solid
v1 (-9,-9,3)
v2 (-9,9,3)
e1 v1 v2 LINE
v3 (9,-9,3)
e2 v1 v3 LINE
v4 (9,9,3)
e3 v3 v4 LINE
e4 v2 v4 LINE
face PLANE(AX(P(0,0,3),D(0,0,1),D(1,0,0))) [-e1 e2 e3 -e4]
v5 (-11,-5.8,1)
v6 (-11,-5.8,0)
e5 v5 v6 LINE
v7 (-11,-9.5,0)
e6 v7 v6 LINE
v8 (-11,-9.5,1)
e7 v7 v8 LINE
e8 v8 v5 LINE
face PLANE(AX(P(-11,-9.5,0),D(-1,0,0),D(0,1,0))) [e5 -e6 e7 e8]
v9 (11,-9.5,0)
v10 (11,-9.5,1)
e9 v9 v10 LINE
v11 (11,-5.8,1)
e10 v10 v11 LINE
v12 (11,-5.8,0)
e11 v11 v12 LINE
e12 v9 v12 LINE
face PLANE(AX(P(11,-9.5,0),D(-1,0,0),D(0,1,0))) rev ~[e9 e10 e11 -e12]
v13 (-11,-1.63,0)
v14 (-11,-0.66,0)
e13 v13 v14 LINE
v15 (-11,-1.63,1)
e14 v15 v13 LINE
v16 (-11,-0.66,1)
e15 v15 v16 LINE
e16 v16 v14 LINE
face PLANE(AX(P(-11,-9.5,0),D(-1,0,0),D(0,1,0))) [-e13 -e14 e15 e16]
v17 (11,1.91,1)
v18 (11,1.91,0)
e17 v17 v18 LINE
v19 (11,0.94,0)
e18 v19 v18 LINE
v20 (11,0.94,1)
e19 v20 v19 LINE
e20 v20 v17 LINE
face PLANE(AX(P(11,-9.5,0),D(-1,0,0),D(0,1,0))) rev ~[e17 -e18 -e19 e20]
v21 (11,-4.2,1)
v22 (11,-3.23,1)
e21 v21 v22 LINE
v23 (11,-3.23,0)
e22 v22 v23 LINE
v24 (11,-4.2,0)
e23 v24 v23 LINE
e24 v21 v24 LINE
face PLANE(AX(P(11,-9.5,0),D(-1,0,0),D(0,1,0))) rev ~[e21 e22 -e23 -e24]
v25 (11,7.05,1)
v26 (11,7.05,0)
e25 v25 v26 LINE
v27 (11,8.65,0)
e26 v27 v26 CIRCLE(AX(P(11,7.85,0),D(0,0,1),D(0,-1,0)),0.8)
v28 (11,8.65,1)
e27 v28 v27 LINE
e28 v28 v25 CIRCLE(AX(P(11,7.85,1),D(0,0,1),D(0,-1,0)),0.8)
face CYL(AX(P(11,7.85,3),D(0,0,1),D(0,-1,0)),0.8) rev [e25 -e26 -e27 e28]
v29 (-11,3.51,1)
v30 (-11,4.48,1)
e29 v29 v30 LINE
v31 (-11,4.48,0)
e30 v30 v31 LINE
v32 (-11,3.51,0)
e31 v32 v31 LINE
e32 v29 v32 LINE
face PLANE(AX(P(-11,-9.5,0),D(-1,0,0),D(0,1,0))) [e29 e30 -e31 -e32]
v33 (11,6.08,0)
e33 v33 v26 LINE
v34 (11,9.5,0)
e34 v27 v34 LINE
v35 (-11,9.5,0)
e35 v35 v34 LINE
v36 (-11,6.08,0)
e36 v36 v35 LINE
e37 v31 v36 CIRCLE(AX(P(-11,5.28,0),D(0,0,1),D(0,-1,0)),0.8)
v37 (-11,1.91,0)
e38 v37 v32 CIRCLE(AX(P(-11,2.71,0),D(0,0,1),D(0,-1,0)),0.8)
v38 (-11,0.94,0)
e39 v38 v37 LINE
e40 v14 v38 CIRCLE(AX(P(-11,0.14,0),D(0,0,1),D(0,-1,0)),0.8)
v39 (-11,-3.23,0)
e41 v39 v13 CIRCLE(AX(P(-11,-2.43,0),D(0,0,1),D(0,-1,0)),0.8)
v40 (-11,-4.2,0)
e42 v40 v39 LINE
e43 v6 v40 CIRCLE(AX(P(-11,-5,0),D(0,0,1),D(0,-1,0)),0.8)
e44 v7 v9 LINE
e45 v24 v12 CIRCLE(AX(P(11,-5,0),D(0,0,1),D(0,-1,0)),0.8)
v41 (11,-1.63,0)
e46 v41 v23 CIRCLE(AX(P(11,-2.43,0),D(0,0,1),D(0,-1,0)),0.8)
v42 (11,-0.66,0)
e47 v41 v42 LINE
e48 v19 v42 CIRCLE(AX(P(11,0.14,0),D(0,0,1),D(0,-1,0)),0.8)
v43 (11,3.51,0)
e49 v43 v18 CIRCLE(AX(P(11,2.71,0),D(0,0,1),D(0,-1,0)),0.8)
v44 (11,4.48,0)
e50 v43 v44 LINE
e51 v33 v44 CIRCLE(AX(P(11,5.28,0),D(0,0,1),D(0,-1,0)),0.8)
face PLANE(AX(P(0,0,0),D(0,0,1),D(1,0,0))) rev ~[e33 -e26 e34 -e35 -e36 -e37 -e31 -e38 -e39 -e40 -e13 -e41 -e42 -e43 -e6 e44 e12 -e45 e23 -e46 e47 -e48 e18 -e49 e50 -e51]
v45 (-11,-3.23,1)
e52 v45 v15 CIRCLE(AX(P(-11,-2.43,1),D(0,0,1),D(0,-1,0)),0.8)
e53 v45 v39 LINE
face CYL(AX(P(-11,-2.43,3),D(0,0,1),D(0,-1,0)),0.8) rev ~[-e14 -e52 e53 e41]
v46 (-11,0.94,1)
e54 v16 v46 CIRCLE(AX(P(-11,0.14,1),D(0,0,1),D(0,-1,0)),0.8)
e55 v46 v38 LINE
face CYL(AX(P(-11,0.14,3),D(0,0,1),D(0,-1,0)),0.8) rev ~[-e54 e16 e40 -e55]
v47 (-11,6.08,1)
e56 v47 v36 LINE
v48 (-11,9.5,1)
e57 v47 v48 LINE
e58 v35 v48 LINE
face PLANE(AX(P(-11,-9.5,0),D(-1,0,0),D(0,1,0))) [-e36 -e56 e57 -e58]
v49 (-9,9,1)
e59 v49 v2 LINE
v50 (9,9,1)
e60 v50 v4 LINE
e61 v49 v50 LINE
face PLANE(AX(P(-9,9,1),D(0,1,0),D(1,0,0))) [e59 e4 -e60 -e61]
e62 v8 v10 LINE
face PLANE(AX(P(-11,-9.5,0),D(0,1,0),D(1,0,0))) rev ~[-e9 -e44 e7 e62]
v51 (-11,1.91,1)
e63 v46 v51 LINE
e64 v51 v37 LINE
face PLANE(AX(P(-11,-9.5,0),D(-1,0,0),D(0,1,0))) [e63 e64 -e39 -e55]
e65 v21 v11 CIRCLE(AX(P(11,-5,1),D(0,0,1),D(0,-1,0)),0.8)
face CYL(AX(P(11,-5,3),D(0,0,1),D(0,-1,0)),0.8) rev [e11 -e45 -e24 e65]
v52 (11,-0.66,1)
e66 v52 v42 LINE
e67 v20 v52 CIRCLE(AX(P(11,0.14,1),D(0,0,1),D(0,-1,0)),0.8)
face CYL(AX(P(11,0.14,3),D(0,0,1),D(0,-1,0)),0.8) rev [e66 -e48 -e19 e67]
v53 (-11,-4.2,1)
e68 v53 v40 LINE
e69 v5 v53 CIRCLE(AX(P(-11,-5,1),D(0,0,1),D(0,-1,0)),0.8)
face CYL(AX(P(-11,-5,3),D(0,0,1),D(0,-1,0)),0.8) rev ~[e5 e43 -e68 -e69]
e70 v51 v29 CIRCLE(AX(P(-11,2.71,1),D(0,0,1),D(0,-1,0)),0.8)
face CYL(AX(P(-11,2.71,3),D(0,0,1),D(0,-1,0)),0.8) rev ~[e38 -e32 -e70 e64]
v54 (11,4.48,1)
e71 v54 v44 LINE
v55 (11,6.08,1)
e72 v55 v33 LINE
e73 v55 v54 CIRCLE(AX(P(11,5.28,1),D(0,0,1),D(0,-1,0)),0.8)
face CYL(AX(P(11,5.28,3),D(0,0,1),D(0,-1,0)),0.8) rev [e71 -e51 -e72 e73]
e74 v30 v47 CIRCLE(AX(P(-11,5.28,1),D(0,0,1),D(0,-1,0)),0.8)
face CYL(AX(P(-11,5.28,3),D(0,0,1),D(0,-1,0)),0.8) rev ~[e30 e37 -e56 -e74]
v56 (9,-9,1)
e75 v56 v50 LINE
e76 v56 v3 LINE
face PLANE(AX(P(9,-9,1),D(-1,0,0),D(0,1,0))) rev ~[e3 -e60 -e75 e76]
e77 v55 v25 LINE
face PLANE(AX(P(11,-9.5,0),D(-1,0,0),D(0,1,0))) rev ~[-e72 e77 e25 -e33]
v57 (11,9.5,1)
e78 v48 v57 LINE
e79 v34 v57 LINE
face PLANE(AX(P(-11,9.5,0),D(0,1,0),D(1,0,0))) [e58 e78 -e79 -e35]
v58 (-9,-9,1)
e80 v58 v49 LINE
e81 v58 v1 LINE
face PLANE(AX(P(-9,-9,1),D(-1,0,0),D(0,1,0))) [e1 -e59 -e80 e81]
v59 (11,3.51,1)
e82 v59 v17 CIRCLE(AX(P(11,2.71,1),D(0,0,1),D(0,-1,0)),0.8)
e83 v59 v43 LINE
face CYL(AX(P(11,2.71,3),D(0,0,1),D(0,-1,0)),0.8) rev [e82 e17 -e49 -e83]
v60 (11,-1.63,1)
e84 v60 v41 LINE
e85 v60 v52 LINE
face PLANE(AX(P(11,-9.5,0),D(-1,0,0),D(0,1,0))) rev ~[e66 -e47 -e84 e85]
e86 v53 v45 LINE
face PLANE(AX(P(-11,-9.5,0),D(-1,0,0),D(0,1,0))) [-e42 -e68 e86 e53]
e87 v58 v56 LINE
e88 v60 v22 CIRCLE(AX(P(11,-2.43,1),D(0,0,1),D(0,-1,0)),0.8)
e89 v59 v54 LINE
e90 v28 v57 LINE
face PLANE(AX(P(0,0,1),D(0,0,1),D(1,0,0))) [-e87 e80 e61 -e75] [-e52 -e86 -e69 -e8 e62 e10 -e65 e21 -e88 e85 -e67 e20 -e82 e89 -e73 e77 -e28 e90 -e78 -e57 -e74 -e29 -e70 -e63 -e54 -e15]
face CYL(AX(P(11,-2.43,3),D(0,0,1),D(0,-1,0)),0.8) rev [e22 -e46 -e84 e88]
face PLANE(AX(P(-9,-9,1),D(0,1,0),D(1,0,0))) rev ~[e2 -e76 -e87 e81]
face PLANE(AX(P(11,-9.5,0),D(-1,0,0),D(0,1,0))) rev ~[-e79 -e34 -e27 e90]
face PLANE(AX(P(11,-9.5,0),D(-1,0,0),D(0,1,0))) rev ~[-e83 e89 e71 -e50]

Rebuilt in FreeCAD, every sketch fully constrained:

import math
import FreeCAD as App
import Part
import Sketcher


def add_polygon(sketch, points):
    """Adds a closed chain of lines whose ends are joined by coincident constraints."""
    first, n = sketch.GeometryCount, len(points)
    for a, b in zip(points, points[1:] + points[:1]):
        sketch.addGeometry(Part.LineSegment(App.Vector(*a, 0), App.Vector(*b, 0)), False)
    for i in range(n):
        sketch.addConstraint(Sketcher.Constraint("Coincident", first + i, 2, first + (i + 1) % n, 1))

doc = App.newDocument("Part")
body = doc.addObject("PartDesign::Body", "Body")

# Sketch on XY plane
sketch1 = body.newObject("Sketcher::SketchObject", "Sketch")
sketch1.AttachmentSupport = (doc.getObject("XY_Plane"), [""])
sketch1.MapMode = "FlatFace"
add_polygon(sketch1, [(-11, 10), (-11, -10), (11, -10), (11, 10)])  # lines 0-3
sketch1.addConstraint(Sketcher.Constraint("Vertical", 0))
sketch1.addConstraint(Sketcher.Constraint("Horizontal", 1))
sketch1.addConstraint(Sketcher.Constraint("Vertical", 2))
sketch1.addConstraint(Sketcher.Constraint("Horizontal", 3))
sketch1.addConstraint(Sketcher.Constraint("Symmetric", 0, 2, 2, 2, -1, 1))
sketch1.addConstraint(Sketcher.Constraint("DistanceX", 1, 1, 1, 2, 22.0))
sketch1.addConstraint(Sketcher.Constraint("DistanceY", 0, 2, 0, 1, 19.0))
pad1 = body.newObject("PartDesign::Pad", "Pad")
pad1.Profile = sketch1
pad1.Length = 1

# Sketch on XY plane
sketch2 = body.newObject("Sketcher::SketchObject", "Sketch001")
sketch2.AttachmentSupport = (doc.getObject("XY_Plane"), [""])
sketch2.MapMode = "FlatFace"
sketch2.AttachmentOffset = App.Placement(App.Vector(0, 0, 1), App.Rotation())
add_polygon(sketch2, [(-9, 9), (-9, -9), (9, -9), (9, 9)])  # lines 0-3
sketch2.addConstraint(Sketcher.Constraint("Vertical", 0))
sketch2.addConstraint(Sketcher.Constraint("Horizontal", 1))
sketch2.addConstraint(Sketcher.Constraint("Vertical", 2))
sketch2.addConstraint(Sketcher.Constraint("Horizontal", 3))
sketch2.addConstraint(Sketcher.Constraint("Symmetric", 0, 2, 2, 2, -1, 1))
sketch2.addConstraint(Sketcher.Constraint("Equal", 3, 0))
sketch2.addConstraint(Sketcher.Constraint("DistanceX", 1, 1, 1, 2, 18.0))
pad2 = body.newObject("PartDesign::Pad", "Pad001")
pad2.Profile = sketch2
pad2.Length = 2

# Sketch on XY plane
sketch3 = body.newObject("Sketcher::SketchObject", "Sketch002")
sketch3.AttachmentSupport = (doc.getObject("XY_Plane"), [""])
sketch3.MapMode = "FlatFace"
sketch3.AttachmentOffset = App.Placement(App.Vector(0, 0, 3), App.Rotation())
sketch3.addGeometry(Part.LineSegment(App.Vector(-11, -4.2, 0), App.Vector(-11, -5.8, 0)), False)
sketch3.addGeometry(Part.ArcOfCircle(Part.Circle(App.Vector(-11, -5, 0), App.Vector(0, 0, 1), 0.8), math.radians(-90), math.radians(90)), False)
sketch3.addGeometry(Part.LineSegment(App.Vector(-11, -1.6, 0), App.Vector(-11, -3.2, 0)), False)
sketch3.addGeometry(Part.ArcOfCircle(Part.Circle(App.Vector(-11, -2.4, 0), App.Vector(0, 0, 1), 0.8), math.radians(-90), math.radians(90)), False)
sketch3.addGeometry(Part.LineSegment(App.Vector(-11, 0.9, 0), App.Vector(-11, -0.7, 0)), False)
sketch3.addGeometry(Part.ArcOfCircle(Part.Circle(App.Vector(-11, 0.1, 0), App.Vector(0, 0, 1), 0.8), math.radians(-90), math.radians(90)), False)
sketch3.addGeometry(Part.LineSegment(App.Vector(-11, 3.5, 0), App.Vector(-11, 1.9, 0)), False)
sketch3.addGeometry(Part.ArcOfCircle(Part.Circle(App.Vector(-11, 2.7, 0), App.Vector(0, 0, 1), 0.8), math.radians(-90), math.radians(90)), False)
sketch3.addGeometry(Part.LineSegment(App.Vector(-11, 6.1, 0), App.Vector(-11, 4.5, 0)), False)
sketch3.addGeometry(Part.ArcOfCircle(Part.Circle(App.Vector(-11, 5.3, 0), App.Vector(0, 0, 1), 0.8), math.radians(-90), math.radians(90)), False)
sketch3.addGeometry(Part.LineSegment(App.Vector(11, -5.8, 0), App.Vector(11, -4.2, 0)), False)
sketch3.addGeometry(Part.ArcOfCircle(Part.Circle(App.Vector(11, -5, 0), App.Vector(0, 0, 1), 0.8), math.radians(90), math.radians(270)), False)
sketch3.addGeometry(Part.LineSegment(App.Vector(11, -3.2, 0), App.Vector(11, -1.6, 0)), False)
sketch3.addGeometry(Part.ArcOfCircle(Part.Circle(App.Vector(11, -2.4, 0), App.Vector(0, 0, 1), 0.8), math.radians(90), math.radians(270)), False)
sketch3.addGeometry(Part.LineSegment(App.Vector(11, -0.7, 0), App.Vector(11, 0.9, 0)), False)
sketch3.addGeometry(Part.ArcOfCircle(Part.Circle(App.Vector(11, 0.1, 0), App.Vector(0, 0, 1), 0.8), math.radians(90), math.radians(270)), False)
sketch3.addGeometry(Part.LineSegment(App.Vector(11, 1.9, 0), App.Vector(11, 3.5, 0)), False)
sketch3.addGeometry(Part.ArcOfCircle(Part.Circle(App.Vector(11, 2.7, 0), App.Vector(0, 0, 1), 0.8), math.radians(90), math.radians(270)), False)
sketch3.addGeometry(Part.LineSegment(App.Vector(11, 4.5, 0), App.Vector(11, 6.1, 0)), False)
sketch3.addGeometry(Part.ArcOfCircle(Part.Circle(App.Vector(11, 5.3, 0), App.Vector(0, 0, 1), 0.8), math.radians(90), math.radians(270)), False)
sketch3.addGeometry(Part.LineSegment(App.Vector(11, 7, 0), App.Vector(11, 8.7, 0)), False)
sketch3.addGeometry(Part.ArcOfCircle(Part.Circle(App.Vector(11, 7.8, 0), App.Vector(0, 0, 1), 0.8), math.radians(90), math.radians(270)), False)
sketch3.addConstraint(Sketcher.Constraint("Coincident", 0, 1, 1, 2))
sketch3.addConstraint(Sketcher.Constraint("Coincident", 1, 1, 0, 2))
sketch3.addConstraint(Sketcher.Constraint("Coincident", 2, 1, 3, 2))
sketch3.addConstraint(Sketcher.Constraint("Coincident", 3, 1, 2, 2))
sketch3.addConstraint(Sketcher.Constraint("Coincident", 4, 1, 5, 2))
sketch3.addConstraint(Sketcher.Constraint("Coincident", 5, 1, 4, 2))
sketch3.addConstraint(Sketcher.Constraint("Coincident", 6, 1, 7, 2))
sketch3.addConstraint(Sketcher.Constraint("Coincident", 7, 1, 6, 2))
sketch3.addConstraint(Sketcher.Constraint("Coincident", 8, 1, 9, 2))
sketch3.addConstraint(Sketcher.Constraint("Coincident", 9, 1, 8, 2))
sketch3.addConstraint(Sketcher.Constraint("Coincident", 10, 1, 11, 2))
sketch3.addConstraint(Sketcher.Constraint("Coincident", 11, 1, 10, 2))
sketch3.addConstraint(Sketcher.Constraint("Coincident", 12, 1, 13, 2))
sketch3.addConstraint(Sketcher.Constraint("Coincident", 13, 1, 12, 2))
sketch3.addConstraint(Sketcher.Constraint("Coincident", 14, 1, 15, 2))
sketch3.addConstraint(Sketcher.Constraint("Coincident", 15, 1, 14, 2))
sketch3.addConstraint(Sketcher.Constraint("Coincident", 16, 1, 17, 2))
sketch3.addConstraint(Sketcher.Constraint("Coincident", 17, 1, 16, 2))
sketch3.addConstraint(Sketcher.Constraint("Coincident", 18, 1, 19, 2))
sketch3.addConstraint(Sketcher.Constraint("Coincident", 19, 1, 18, 2))
sketch3.addConstraint(Sketcher.Constraint("Coincident", 20, 1, 21, 2))
sketch3.addConstraint(Sketcher.Constraint("Coincident", 21, 1, 20, 2))
sketch3.addConstraint(Sketcher.Constraint("Vertical", 0))
sketch3.addConstraint(Sketcher.Constraint("Vertical", 2))
sketch3.addConstraint(Sketcher.Constraint("Vertical", 4))
sketch3.addConstraint(Sketcher.Constraint("Vertical", 6))
sketch3.addConstraint(Sketcher.Constraint("Vertical", 8))
sketch3.addConstraint(Sketcher.Constraint("Vertical", 10))
sketch3.addConstraint(Sketcher.Constraint("Vertical", 12))
sketch3.addConstraint(Sketcher.Constraint("Vertical", 14))
sketch3.addConstraint(Sketcher.Constraint("Vertical", 16))
sketch3.addConstraint(Sketcher.Constraint("Vertical", 18))
sketch3.addConstraint(Sketcher.Constraint("Vertical", 20))
sketch3.addConstraint(Sketcher.Constraint("Equal", 1, 3))
sketch3.addConstraint(Sketcher.Constraint("Equal", 3, 5))
sketch3.addConstraint(Sketcher.Constraint("Equal", 5, 7))
sketch3.addConstraint(Sketcher.Constraint("Equal", 7, 9))
sketch3.addConstraint(Sketcher.Constraint("Equal", 9, 11))
sketch3.addConstraint(Sketcher.Constraint("Equal", 11, 13))
sketch3.addConstraint(Sketcher.Constraint("Equal", 13, 15))
sketch3.addConstraint(Sketcher.Constraint("Equal", 15, 17))
sketch3.addConstraint(Sketcher.Constraint("Equal", 17, 19))
sketch3.addConstraint(Sketcher.Constraint("Equal", 19, 21))
sketch3.addConstraint(Sketcher.Constraint("Symmetric", 1, 3, 11, 3, -2))
sketch3.addConstraint(Sketcher.Constraint("Symmetric", 3, 3, 13, 3, -2))
sketch3.addConstraint(Sketcher.Constraint("Symmetric", 5, 3, 15, 3, -2))
sketch3.addConstraint(Sketcher.Constraint("Symmetric", 7, 3, 17, 3, -2))
sketch3.addConstraint(Sketcher.Constraint("Symmetric", 9, 3, 19, 3, -2))
sketch3.addConstraint(Sketcher.Constraint("Vertical", 1, 3, 3, 3))
sketch3.addConstraint(Sketcher.Constraint("Vertical", 3, 3, 5, 3))
sketch3.addConstraint(Sketcher.Constraint("Vertical", 5, 3, 7, 3))
sketch3.addConstraint(Sketcher.Constraint("Vertical", 7, 3, 9, 3))
sketch3.addConstraint(Sketcher.Constraint("Vertical", 19, 3, 21, 3))
sketch3.addConstraint(Sketcher.Constraint("Vertical", 9, 3, 0, 1))
sketch3.addConstraint(Sketcher.Constraint("Vertical", 1, 1, 2, 1))
sketch3.addConstraint(Sketcher.Constraint("Vertical", 3, 1, 4, 1))
sketch3.addConstraint(Sketcher.Constraint("Vertical", 5, 1, 6, 1))
sketch3.addConstraint(Sketcher.Constraint("Vertical", 7, 1, 8, 1))
sketch3.addConstraint(Sketcher.Constraint("Vertical", 21, 3, 10, 1))
sketch3.addConstraint(Sketcher.Constraint("Vertical", 11, 1, 12, 1))
sketch3.addConstraint(Sketcher.Constraint("Vertical", 13, 1, 14, 1))
sketch3.addConstraint(Sketcher.Constraint("Vertical", 15, 1, 16, 1))
sketch3.addConstraint(Sketcher.Constraint("Vertical", 17, 1, 18, 1))
sketch3.addConstraint(Sketcher.Constraint("Vertical", 19, 1, 20, 1))
sketch3.addConstraint(Sketcher.Constraint("Radius", 1, 0.8))
sketch3.addConstraint(Sketcher.Constraint("DistanceX", 1, 3, -1, 1, 11.0))
sketch3.addConstraint(Sketcher.Constraint("DistanceY", 1, 3, -1, 1, 5.0))
sketch3.addConstraint(Sketcher.Constraint("DistanceY", 3, 3, -1, 1, 2.43))
sketch3.addConstraint(Sketcher.Constraint("DistanceY", -1, 1, 5, 3, 0.14))
sketch3.addConstraint(Sketcher.Constraint("DistanceY", -1, 1, 7, 3, 2.71))
sketch3.addConstraint(Sketcher.Constraint("DistanceY", -1, 1, 9, 3, 5.28))
sketch3.addConstraint(Sketcher.Constraint("DistanceY", -1, 1, 21, 3, 7.85))
pocket1 = body.newObject("PartDesign::Pocket", "Pocket")
pocket1.Profile = sketch3
pocket1.Type = "ThroughAll"

doc.recompute()
